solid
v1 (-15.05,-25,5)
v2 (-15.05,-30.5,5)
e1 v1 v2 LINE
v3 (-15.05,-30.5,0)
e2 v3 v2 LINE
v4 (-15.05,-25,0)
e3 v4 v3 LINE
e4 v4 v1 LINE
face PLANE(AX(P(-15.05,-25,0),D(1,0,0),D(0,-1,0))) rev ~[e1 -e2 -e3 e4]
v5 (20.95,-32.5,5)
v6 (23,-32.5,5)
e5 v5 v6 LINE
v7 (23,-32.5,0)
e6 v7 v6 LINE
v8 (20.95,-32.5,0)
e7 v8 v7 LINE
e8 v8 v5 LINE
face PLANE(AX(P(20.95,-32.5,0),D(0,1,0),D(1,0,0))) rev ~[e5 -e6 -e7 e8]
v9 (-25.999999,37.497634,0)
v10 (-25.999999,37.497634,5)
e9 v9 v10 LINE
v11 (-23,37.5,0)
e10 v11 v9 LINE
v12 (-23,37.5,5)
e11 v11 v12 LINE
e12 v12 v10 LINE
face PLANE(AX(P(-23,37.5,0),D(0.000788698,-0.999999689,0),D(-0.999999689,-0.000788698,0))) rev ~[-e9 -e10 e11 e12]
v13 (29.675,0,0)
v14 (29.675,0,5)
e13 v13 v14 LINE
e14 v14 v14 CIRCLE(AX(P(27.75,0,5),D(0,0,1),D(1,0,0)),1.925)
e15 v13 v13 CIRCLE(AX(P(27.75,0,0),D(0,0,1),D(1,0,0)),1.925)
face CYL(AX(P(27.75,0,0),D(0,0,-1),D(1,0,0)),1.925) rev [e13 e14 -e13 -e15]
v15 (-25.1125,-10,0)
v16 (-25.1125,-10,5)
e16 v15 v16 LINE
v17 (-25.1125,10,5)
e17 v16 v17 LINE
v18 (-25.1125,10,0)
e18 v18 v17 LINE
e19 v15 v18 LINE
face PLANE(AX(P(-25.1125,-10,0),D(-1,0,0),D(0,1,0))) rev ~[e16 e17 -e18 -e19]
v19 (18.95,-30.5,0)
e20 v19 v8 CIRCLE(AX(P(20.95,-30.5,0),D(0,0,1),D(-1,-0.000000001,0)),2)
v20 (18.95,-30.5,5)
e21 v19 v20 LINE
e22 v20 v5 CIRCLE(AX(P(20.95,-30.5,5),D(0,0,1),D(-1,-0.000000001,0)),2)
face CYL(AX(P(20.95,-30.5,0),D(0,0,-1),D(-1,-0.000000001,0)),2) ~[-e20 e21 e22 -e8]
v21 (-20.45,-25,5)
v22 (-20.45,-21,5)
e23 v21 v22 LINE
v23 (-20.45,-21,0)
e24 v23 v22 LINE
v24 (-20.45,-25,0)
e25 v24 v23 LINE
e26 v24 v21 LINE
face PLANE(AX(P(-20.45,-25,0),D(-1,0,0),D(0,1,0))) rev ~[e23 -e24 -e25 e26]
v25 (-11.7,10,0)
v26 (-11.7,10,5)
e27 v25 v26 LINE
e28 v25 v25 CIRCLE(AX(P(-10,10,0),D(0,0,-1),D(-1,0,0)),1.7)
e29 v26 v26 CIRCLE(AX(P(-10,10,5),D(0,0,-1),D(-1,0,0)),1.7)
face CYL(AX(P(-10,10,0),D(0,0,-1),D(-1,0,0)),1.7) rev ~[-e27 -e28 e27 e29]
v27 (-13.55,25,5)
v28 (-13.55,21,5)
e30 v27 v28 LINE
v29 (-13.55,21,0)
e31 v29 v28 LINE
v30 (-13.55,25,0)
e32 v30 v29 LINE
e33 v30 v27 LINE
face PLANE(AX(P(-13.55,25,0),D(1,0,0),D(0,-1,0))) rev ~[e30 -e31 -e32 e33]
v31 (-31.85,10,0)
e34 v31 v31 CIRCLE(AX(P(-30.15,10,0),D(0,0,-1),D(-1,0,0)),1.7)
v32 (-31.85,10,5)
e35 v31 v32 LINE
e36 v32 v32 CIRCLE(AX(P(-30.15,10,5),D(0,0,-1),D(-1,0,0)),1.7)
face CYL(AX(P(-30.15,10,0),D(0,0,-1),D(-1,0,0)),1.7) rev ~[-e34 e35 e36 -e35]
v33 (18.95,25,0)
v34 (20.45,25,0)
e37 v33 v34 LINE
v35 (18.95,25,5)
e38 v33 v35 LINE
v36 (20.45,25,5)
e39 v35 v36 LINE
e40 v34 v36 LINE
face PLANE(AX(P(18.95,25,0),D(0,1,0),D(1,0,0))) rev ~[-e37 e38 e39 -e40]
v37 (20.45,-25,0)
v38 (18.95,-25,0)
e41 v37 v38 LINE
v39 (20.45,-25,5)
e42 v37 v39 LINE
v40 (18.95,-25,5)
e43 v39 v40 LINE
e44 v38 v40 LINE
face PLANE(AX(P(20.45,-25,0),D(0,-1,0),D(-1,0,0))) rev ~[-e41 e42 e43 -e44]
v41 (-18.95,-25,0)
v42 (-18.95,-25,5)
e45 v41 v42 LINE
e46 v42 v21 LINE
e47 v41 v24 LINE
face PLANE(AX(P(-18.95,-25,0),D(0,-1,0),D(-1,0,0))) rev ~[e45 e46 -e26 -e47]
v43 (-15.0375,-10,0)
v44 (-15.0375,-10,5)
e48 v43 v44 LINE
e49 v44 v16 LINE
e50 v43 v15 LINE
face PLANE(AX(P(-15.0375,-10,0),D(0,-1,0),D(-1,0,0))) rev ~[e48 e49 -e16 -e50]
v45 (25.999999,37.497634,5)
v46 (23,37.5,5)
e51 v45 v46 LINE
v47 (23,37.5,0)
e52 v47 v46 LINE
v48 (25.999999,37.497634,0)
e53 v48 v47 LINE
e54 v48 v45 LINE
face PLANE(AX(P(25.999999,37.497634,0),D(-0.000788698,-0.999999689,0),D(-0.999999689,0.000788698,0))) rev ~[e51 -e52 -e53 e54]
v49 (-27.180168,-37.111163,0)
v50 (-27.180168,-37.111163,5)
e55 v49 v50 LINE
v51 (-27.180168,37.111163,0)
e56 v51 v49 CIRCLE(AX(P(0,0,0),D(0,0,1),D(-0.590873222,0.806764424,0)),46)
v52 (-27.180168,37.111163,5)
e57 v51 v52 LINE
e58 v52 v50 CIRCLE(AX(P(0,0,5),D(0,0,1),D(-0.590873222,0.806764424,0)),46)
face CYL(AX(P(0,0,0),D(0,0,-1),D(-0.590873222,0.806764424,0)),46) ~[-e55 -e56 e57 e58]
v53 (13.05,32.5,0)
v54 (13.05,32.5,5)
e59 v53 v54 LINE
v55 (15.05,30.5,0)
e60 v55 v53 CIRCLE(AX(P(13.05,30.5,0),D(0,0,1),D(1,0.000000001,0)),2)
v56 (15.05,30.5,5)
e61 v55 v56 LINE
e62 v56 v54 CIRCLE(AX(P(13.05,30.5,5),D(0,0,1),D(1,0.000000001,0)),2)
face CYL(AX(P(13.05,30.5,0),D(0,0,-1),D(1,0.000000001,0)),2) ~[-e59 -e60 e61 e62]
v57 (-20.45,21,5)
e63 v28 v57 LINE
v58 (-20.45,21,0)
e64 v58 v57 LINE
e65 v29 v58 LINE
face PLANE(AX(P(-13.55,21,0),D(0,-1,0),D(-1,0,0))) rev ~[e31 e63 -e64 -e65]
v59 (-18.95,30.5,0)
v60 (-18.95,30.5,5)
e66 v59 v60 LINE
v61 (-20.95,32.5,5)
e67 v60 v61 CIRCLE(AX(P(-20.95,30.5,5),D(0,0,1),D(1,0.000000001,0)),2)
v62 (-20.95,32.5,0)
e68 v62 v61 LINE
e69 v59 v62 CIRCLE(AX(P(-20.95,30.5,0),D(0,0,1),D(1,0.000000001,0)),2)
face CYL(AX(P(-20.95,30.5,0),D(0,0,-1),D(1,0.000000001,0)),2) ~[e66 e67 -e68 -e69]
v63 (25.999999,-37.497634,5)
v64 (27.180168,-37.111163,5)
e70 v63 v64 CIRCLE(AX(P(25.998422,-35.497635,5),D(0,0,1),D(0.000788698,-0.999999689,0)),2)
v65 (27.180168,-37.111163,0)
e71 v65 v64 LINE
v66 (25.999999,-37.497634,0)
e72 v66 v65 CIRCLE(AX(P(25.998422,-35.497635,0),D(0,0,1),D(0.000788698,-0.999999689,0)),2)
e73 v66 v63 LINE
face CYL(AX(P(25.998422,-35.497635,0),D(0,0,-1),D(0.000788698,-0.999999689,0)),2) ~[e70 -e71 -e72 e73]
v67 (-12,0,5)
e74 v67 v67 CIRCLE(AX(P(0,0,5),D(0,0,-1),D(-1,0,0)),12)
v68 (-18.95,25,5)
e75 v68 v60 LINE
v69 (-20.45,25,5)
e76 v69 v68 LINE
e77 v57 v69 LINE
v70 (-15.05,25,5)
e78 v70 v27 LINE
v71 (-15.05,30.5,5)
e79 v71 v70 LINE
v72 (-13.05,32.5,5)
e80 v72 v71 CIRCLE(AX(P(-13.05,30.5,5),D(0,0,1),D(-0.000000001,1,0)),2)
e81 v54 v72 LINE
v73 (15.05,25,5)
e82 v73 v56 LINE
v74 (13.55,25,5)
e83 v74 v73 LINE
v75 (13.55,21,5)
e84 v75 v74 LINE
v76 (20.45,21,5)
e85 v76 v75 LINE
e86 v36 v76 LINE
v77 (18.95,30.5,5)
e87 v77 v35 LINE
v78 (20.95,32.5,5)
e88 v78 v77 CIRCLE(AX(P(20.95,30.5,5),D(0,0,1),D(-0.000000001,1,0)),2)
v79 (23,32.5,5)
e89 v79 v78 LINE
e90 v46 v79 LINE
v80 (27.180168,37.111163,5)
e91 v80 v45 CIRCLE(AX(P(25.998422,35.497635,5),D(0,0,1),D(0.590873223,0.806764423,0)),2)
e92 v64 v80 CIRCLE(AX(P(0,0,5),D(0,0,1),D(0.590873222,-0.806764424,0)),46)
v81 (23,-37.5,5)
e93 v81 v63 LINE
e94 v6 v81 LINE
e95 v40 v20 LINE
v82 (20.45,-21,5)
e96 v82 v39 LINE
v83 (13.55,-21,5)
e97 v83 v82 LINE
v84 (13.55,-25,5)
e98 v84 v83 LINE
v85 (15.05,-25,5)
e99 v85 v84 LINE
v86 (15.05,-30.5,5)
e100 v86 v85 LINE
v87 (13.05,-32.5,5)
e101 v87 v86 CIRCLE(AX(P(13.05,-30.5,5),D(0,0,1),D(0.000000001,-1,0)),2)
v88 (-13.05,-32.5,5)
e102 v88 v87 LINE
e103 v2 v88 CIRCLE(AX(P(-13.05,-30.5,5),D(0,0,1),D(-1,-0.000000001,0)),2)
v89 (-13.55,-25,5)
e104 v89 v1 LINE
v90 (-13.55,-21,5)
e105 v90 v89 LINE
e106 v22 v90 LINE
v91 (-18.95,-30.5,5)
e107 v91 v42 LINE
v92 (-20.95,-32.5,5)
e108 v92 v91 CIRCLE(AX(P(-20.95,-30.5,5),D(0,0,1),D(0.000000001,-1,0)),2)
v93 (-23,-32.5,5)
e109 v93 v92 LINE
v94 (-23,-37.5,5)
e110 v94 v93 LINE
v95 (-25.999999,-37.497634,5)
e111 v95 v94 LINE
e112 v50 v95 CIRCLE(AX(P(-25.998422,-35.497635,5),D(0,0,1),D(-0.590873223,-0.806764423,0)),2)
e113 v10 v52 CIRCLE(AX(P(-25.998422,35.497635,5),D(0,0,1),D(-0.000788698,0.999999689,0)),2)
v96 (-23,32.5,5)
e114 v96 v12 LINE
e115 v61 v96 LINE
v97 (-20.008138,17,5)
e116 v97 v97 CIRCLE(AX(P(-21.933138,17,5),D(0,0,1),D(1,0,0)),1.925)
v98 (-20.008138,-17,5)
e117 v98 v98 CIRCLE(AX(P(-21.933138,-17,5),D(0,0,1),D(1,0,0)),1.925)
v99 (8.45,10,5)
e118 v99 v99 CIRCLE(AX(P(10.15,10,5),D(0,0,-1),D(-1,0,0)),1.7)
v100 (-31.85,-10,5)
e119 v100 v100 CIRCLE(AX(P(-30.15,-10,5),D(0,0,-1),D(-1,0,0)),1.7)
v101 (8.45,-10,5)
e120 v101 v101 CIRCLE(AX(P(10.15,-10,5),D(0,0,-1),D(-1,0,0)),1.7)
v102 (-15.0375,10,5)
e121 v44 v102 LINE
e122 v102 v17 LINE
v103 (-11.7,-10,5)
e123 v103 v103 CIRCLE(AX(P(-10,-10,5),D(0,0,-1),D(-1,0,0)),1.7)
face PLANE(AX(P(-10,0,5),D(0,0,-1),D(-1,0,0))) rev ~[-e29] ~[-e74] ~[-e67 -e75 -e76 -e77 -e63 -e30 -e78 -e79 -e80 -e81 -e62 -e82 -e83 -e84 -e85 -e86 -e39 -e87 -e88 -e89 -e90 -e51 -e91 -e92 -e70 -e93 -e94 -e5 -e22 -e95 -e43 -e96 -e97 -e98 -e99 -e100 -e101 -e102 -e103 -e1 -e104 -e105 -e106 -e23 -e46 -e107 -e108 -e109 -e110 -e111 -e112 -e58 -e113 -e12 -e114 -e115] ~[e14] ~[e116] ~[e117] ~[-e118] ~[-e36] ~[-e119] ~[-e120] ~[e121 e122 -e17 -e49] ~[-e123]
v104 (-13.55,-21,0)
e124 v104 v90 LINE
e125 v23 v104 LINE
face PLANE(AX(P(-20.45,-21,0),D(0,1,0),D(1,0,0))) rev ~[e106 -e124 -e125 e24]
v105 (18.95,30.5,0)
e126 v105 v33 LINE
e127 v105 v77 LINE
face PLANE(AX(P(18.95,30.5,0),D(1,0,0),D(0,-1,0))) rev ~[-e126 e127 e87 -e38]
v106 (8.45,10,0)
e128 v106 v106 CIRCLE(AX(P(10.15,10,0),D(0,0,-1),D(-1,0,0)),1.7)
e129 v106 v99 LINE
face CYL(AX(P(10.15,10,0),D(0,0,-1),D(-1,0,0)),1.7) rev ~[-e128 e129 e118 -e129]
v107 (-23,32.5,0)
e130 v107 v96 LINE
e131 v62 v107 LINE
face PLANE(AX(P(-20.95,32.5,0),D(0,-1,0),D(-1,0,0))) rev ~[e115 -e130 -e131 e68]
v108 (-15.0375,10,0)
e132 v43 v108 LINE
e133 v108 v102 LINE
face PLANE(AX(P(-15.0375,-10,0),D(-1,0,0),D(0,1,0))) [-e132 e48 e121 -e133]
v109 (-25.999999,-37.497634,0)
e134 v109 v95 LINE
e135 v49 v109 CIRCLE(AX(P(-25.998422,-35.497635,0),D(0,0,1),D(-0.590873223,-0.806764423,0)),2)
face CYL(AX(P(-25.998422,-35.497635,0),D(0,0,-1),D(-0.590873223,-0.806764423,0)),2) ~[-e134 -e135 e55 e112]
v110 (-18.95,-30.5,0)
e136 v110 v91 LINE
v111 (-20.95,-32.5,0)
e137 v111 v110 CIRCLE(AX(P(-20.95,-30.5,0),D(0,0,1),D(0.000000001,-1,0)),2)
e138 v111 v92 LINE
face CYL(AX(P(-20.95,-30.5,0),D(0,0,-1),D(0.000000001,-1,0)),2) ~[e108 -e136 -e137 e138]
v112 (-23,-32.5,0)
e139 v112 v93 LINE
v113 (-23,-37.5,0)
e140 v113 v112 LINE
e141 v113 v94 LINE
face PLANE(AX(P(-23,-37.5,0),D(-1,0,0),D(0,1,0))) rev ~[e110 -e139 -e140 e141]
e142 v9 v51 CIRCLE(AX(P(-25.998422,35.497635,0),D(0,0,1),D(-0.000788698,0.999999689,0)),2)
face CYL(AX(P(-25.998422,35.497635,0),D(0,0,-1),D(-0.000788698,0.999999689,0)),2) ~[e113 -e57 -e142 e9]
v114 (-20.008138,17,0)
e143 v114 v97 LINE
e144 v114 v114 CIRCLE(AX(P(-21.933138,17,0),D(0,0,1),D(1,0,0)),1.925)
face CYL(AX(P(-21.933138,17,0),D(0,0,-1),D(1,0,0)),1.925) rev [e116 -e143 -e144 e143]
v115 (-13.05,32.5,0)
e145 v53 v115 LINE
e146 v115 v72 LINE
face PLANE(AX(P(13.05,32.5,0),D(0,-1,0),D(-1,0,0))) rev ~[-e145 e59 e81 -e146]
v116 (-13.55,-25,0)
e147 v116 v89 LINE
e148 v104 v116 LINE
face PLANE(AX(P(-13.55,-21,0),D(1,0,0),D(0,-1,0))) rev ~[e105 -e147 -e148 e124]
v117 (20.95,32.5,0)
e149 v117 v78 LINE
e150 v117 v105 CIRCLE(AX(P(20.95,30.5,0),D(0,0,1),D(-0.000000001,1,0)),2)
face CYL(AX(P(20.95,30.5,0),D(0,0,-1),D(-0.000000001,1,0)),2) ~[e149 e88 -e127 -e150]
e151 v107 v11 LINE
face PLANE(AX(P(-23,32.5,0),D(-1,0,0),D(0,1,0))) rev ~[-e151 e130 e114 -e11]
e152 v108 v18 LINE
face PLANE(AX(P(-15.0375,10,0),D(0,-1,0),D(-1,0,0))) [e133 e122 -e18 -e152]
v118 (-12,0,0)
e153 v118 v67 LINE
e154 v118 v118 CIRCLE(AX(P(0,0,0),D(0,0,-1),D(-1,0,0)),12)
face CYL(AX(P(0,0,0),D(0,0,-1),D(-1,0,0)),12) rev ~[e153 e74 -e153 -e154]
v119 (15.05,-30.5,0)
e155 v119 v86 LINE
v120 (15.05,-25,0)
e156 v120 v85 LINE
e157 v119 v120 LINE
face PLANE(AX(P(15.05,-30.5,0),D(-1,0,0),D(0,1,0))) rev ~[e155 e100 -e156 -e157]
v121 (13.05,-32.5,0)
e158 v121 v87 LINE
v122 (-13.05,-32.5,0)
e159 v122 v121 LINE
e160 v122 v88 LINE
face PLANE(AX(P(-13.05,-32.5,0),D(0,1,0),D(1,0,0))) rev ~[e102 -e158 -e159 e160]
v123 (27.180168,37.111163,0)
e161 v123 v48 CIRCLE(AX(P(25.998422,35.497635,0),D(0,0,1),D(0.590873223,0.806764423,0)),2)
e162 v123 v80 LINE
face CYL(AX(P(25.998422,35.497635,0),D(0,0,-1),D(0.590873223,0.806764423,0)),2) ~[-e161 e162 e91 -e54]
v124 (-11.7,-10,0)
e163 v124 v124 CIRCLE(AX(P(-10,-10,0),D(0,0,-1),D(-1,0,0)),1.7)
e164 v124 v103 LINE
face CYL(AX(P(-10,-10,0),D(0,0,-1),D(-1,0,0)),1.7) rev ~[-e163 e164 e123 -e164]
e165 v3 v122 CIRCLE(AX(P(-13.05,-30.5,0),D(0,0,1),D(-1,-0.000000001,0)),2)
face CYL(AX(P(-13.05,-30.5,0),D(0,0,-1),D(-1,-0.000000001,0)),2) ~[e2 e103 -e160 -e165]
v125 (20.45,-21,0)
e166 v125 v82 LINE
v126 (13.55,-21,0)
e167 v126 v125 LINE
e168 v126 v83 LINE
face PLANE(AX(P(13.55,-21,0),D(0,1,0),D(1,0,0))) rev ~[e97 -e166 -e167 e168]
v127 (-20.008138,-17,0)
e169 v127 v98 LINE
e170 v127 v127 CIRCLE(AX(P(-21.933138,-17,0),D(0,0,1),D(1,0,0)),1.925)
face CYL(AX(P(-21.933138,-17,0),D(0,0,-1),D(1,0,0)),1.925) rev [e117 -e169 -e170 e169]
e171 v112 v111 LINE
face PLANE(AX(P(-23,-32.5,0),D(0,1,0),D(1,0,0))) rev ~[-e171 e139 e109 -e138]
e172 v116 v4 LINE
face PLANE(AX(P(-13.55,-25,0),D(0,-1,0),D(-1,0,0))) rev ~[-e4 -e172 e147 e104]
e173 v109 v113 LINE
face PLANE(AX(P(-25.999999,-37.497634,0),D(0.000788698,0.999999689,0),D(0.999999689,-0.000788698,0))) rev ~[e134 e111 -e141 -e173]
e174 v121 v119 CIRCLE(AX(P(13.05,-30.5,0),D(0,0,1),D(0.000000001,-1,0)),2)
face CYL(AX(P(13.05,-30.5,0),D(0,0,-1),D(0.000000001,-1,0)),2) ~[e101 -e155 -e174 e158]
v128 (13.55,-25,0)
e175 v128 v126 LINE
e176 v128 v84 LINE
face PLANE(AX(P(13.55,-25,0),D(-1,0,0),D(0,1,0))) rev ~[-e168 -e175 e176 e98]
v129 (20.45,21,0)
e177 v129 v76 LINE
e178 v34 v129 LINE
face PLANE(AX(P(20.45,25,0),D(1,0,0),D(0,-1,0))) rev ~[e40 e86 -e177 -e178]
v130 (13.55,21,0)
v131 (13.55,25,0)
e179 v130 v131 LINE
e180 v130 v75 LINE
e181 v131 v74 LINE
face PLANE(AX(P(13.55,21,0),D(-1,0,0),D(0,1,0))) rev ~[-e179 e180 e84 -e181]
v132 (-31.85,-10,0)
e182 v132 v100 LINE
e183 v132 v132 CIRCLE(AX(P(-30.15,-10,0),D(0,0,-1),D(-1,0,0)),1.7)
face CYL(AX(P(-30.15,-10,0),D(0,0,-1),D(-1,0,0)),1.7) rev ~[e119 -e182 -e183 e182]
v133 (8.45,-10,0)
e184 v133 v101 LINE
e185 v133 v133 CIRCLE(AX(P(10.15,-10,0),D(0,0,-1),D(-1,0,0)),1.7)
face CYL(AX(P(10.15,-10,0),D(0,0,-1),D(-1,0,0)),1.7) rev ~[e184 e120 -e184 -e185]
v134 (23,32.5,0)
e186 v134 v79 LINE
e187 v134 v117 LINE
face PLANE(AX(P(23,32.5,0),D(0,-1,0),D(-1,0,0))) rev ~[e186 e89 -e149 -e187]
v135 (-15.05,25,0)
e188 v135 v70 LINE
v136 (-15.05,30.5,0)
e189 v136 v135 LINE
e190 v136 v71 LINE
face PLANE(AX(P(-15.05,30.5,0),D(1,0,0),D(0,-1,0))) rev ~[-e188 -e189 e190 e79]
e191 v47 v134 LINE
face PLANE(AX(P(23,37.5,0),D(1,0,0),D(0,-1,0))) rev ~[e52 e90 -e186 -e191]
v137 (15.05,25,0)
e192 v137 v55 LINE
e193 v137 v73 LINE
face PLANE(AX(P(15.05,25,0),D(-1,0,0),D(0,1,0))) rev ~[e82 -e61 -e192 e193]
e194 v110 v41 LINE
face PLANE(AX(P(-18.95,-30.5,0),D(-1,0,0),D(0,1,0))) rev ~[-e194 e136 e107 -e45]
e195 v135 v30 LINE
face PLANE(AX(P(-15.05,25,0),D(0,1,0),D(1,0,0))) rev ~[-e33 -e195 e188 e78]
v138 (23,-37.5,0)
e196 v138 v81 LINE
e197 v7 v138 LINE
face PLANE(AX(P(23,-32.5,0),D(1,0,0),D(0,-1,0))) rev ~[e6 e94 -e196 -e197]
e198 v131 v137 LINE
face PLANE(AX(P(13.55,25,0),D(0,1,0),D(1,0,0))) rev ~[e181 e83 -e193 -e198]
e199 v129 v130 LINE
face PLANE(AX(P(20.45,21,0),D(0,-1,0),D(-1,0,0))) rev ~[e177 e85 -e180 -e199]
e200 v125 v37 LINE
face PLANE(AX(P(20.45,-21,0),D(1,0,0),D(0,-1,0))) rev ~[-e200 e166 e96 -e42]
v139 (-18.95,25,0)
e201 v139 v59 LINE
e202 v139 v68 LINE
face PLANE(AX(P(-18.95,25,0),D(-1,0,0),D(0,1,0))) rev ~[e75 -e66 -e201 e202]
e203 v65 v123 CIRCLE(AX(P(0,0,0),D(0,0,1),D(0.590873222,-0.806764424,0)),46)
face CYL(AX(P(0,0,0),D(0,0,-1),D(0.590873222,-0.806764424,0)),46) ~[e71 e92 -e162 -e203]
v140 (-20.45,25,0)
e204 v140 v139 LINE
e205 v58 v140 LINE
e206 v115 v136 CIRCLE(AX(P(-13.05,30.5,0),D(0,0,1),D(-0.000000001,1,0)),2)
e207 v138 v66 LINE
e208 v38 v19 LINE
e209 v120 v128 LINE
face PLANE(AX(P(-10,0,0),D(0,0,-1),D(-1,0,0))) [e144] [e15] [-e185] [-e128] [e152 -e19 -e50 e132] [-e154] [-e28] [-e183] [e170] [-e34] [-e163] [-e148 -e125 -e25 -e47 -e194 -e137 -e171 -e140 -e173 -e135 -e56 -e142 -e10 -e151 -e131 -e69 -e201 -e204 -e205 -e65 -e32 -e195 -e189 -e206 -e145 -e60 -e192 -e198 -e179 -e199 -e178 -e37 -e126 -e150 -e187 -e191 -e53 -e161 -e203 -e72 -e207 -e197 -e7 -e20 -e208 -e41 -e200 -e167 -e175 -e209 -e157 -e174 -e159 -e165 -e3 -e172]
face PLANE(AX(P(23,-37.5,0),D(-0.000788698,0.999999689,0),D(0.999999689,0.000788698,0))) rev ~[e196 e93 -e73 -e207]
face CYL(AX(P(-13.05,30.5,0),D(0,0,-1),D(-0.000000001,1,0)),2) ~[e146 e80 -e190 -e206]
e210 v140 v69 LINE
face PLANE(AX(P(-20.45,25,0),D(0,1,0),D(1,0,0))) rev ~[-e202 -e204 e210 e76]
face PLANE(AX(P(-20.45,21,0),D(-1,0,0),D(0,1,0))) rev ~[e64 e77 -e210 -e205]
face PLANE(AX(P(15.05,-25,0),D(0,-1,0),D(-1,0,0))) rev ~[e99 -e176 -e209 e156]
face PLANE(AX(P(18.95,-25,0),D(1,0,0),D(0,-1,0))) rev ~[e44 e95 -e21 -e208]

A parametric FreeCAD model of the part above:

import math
import FreeCAD as App
import Part
import Sketcher

doc = App.newDocument("Part")
params = doc.addObject("Spreadsheet::Sheet", "Params")
for row, (alias, value) in enumerate([
    ("sketch1_radius", "2 mm"),
    ("sketch1_radius2", "46 mm"),
    ("sketch1_radius3", "0.6 mm"),
    ("sketch1_diameter", "3.85 mm"),
    ("sketch1_height", "4 mm"),
    ("pad1_length", "5 mm"),
    ("sketch2_height", "5.2 mm"),
    ("pad2_length", "5 mm"),
    ("sketch3_height", "20 mm"),
    ("pad3_length", "5 mm"),
    ("sketch4_diameter", "3.2 mm"),
    ("pocket1_length", "5 mm"),
    ("sketch5_radius", "1.6 mm"),
    ("sketch5_height", "16.8 mm"),
    ("sketch5_width", "16.95 mm"),
    ("pad4_length", "5 mm"),
    ("sketch6_diameter", "24 mm"),
    ("sketch6_height", "20 mm"),
    ("pocket2_length", "5 mm"),
    ("sketch7_diameter", "22 mm"),
    ("sketch7_diameter2", "3.4 mm"),
    ("pocket3_length", "5 mm"),
], start=1):
    params.set(f"A{row}", alias)
    params.set(f"B{row}", "=" + value)
    params.setAlias(f"B{row}", alias)

body = doc.addObject("PartDesign::Body", "Body")

sketch1 = body.newObject("Sketcher::SketchObject", "Sketch")
sketch1.AttachmentSupport = (doc.getObject("XY_Plane"), [""])
sketch1.MapMode = "FlatFace"
sketch1.addGeometry([
    Part.LineSegment(App.Vector(13.1, 32.5, 0), App.Vector(-13.1, 32.5, 0)),
    Part.ArcOfCircle(Part.Circle(App.Vector(-13, 30.5, 0), App.Vector(0, 0, 1), 2), math.radians(90), math.radians(180)),
    Part.LineSegment(App.Vector(-15.1, 30.5, 0), App.Vector(-15.1, 25, 0)),
    Part.LineSegment(App.Vector(-15.1, 25, 0), App.Vector(-13.6, 25, 0)),
    Part.LineSegment(App.Vector(-13.6, 25, 0), App.Vector(-13.6, 21, 0)),
    Part.LineSegment(App.Vector(-13.6, 21, 0), App.Vector(-20.4, 21, 0)),
    Part.LineSegment(App.Vector(-20.4, 21, 0), App.Vector(-20.4, 25, 0)),
    Part.LineSegment(App.Vector(-20.4, 25, 0), App.Vector(-18.9, 25, 0)),
    Part.LineSegment(App.Vector(-18.9, 25, 0), App.Vector(-18.9, 30.5, 0)),
    Part.ArcOfCircle(Part.Circle(App.Vector(-21, 30.5, 0), App.Vector(0, 0, 1), 2), math.radians(0), math.radians(90)),
    Part.LineSegment(App.Vector(-20.9, 32.5, 0), App.Vector(-23, 32.5, 0)),
    Part.LineSegment(App.Vector(-23, 32.5, 0), App.Vector(-23, 37.5, 0)),
    Part.LineSegment(App.Vector(-23, 37.5, 0), App.Vector(-26, 37.5, 0)),
    Part.ArcOfCircle(Part.Circle(App.Vector(-26, 35.5, 0), App.Vector(0, 0, 1), 2), math.radians(90), math.radians(126)),
    Part.ArcOfCircle(Part.Circle(App.Vector(0, 0, 0), App.Vector(0, 0, 1), 46), math.radians(126), math.radians(234)),
    Part.ArcOfCircle(Part.Circle(App.Vector(-26, -35.5, 0), App.Vector(0, 0, 1), 2), math.radians(-126), math.radians(-90)),
    Part.LineSegment(App.Vector(-26, -37.5, 0), App.Vector(-23, -37.5, 0)),
    Part.LineSegment(App.Vector(-23, -37.5, 0), App.Vector(-23, -32.5, 0)),
    Part.LineSegment(App.Vector(-23, -32.5, 0), App.Vector(-20.9, -32.5, 0)),
    Part.ArcOfCircle(Part.Circle(App.Vector(-21, -30.5, 0), App.Vector(0, 0, 1), 2), math.radians(-90), math.radians(0)),
    Part.LineSegment(App.Vector(-18.9, -30.5, 0), App.Vector(-18.9, -25, 0)),
    Part.LineSegment(App.Vector(-18.9, -25, 0), App.Vector(-20.4, -25, 0)),
    Part.LineSegment(App.Vector(-20.4, -25, 0), App.Vector(-20.4, -21, 0)),
    Part.LineSegment(App.Vector(-20.4, -21, 0), App.Vector(-13.6, -21, 0)),
    Part.LineSegment(App.Vector(-13.6, -21, 0), App.Vector(-13.6, -25, 0)),
    Part.LineSegment(App.Vector(-13.6, -25, 0), App.Vector(-15.1, -25, 0)),
    Part.LineSegment(App.Vector(-15.1, -25, 0), App.Vector(-15.1, -30.5, 0)),
    Part.ArcOfCircle(Part.Circle(App.Vector(-13, -30.5, 0), App.Vector(0, 0, 1), 2), math.radians(-180), math.radians(-90)),
    Part.LineSegment(App.Vector(-13.1, -32.5, 0), App.Vector(13.1, -32.5, 0)),
    Part.ArcOfCircle(Part.Circle(App.Vector(13, -30.5, 0), App.Vector(0, 0, 1), 2), math.radians(-90), math.radians(0)),
    Part.LineSegment(App.Vector(15.1, -30.5, 0), App.Vector(15.1, -25, 0)),
    Part.LineSegment(App.Vector(15.1, -25, 0), App.Vector(13.6, -25, 0)),
    Part.LineSegment(App.Vector(13.6, -25, 0), App.Vector(13.6, -21, 0)),
    Part.LineSegment(App.Vector(13.6, -21, 0), App.Vector(20.4, -21, 0)),
    Part.LineSegment(App.Vector(20.4, -21, 0), App.Vector(20.4, -25, 0)),
    Part.LineSegment(App.Vector(20.4, -25, 0), App.Vector(18.9, -25, 0)),
    Part.LineSegment(App.Vector(18.9, -25, 0), App.Vector(18.9, -30.5, 0)),
    Part.ArcOfCircle(Part.Circle(App.Vector(21, -30.5, 0), App.Vector(0, 0, 1), 2), math.radians(-180), math.radians(-90)),
    Part.LineSegment(App.Vector(20.9, -32.5, 0), App.Vector(23, -32.5, 0)),
    Part.LineSegment(App.Vector(23, -32.5, 0), App.Vector(23, -37.5, 0)),
    Part.LineSegment(App.Vector(23, -37.5, 0), App.Vector(26, -37.5, 0)),
    Part.ArcOfCircle(Part.Circle(App.Vector(26, -35.5, 0), App.Vector(0, 0, 1), 2), math.radians(-90), math.radians(-54)),
    Part.ArcOfCircle(Part.Circle(App.Vector(0, 0, 0), App.Vector(0, 0, 1), 46), math.radians(-54), math.radians(54)),
    Part.ArcOfCircle(Part.Circle(App.Vector(26, 35.5, 0), App.Vector(0, 0, 1), 2), math.radians(54), math.radians(90)),
    Part.LineSegment(App.Vector(26, 37.5, 0), App.Vector(23, 37.5, 0)),
    Part.LineSegment(App.Vector(23, 37.5, 0), App.Vector(23, 32.5, 0)),
    Part.LineSegment(App.Vector(23, 32.5, 0), App.Vector(20.9, 32.5, 0)),
    Part.ArcOfCircle(Part.Circle(App.Vector(21, 30.5, 0), App.Vector(0, 0, 1), 2), math.radians(90), math.radians(180)),
    Part.LineSegment(App.Vector(18.9, 30.5, 0), App.Vector(18.9, 25, 0)),
    Part.LineSegment(App.Vector(18.9, 25, 0), App.Vector(20.4, 25, 0)),
    Part.LineSegment(App.Vector(20.4, 25, 0), App.Vector(20.4, 21, 0)),
    Part.LineSegment(App.Vector(20.4, 21, 0), App.Vector(13.6, 21, 0)),
    Part.LineSegment(App.Vector(13.6, 21, 0), App.Vector(13.6, 25, 0)),
    Part.LineSegment(App.Vector(13.6, 25, 0), App.Vector(15.1, 25, 0)),
    Part.LineSegment(App.Vector(15.1, 25, 0), App.Vector(15.1, 30.5, 0)),
    Part.ArcOfCircle(Part.Circle(App.Vector(13, 30.5, 0), App.Vector(0, 0, 1), 2), math.radians(0), math.radians(90)),
    Part.Circle(App.Vector(-21.9, -17, 0), App.Vector(0, 0, 1), 1.9),
    Part.Circle(App.Vector(-34.5, -5, 0), App.Vector(0, 0, 1), 1.9),
    Part.Circle(App.Vector(14.5, -5, 0), App.Vector(0, 0, 1), 1.9),
    Part.Circle(App.Vector(-34.5, 5, 0), App.Vector(0, 0, 1), 1.9),
    Part.LineSegment(App.Vector(10.2, -2.6, 0), App.Vector(10.2, -10, 0)),
    Part.LineSegment(App.Vector(10.2, -10, 0), App.Vector(-30.1, -10, 0)),
    Part.LineSegment(App.Vector(-30.1, -10, 0), App.Vector(-30.1, -2.6, 0)),
    Part.ArcOfCircle(Part.Circle(App.Vector(-32.1, -2.6, 0), App.Vector(0, 0, 1), 2), math.radians(0), math.radians(90)),
    Part.LineSegment(App.Vector(-32.1, -0.6, 0), App.Vector(-36.5, -0.6, 0)),
    Part.ArcOfCircle(Part.Circle(App.Vector(-36.5, 0, 0), App.Vector(0, 0, 1), 0.6), math.radians(90), math.radians(270)),
    Part.LineSegment(App.Vector(-36.5, 0.6, 0), App.Vector(-32.1, 0.6, 0)),
    Part.ArcOfCircle(Part.Circle(App.Vector(-32.1, 2.6, 0), App.Vector(0, 0, 1), 2), math.radians(-90), math.radians(0)),
    Part.LineSegment(App.Vector(-30.1, 2.6, 0), App.Vector(-30.1, 10, 0)),
    Part.LineSegment(App.Vector(-30.1, 10, 0), App.Vector(10.2, 10, 0)),
    Part.LineSegment(App.Vector(10.2, 10, 0), App.Vector(10.2, 2.6, 0)),
    Part.ArcOfCircle(Part.Circle(App.Vector(12.2, 2.6, 0), App.Vector(0, 0, 1), 2), math.radians(180), math.radians(270)),
    Part.LineSegment(App.Vector(12.2, 0.6, 0), App.Vector(16.5, 0.6, 0)),
    Part.ArcOfCircle(Part.Circle(App.Vector(16.5, 0, 0), App.Vector(0, 0, 1), 0.6), math.radians(-90), math.radians(90)),
    Part.LineSegment(App.Vector(16.5, -0.6, 0), App.Vector(12.2, -0.6, 0)),
    Part.ArcOfCircle(Part.Circle(App.Vector(12.2, -2.6, 0), App.Vector(0, 0, 1), 2), math.radians(90), math.radians(180)),
    Part.Circle(App.Vector(-21.9, 17, 0), App.Vector(0, 0, 1), 1.9),
    Part.Circle(App.Vector(27.8, 0, 0), App.Vector(0, 0, 1), 1.9),
    Part.Circle(App.Vector(14.5, 5, 0), App.Vector(0, 0, 1), 1.9),
], False)
sketch1.addConstraint([
    Sketcher.Constraint("Tangent", 0, 2, 1, 1),
    Sketcher.Constraint("Tangent", 1, 2, 2, 1),
    Sketcher.Constraint("Coincident", 2, 2, 3, 1),
    Sketcher.Constraint("Coincident", 3, 2, 4, 1),
    Sketcher.Constraint("Coincident", 4, 2, 5, 1),
    Sketcher.Constraint("Coincident", 5, 2, 6, 1),
    Sketcher.Constraint("Coincident", 6, 2, 7, 1),
    Sketcher.Constraint("Coincident", 7, 2, 8, 1),
    Sketcher.Constraint("Tangent", 8, 2, 9, 1),
    Sketcher.Constraint("Tangent", 9, 2, 10, 1),
    Sketcher.Constraint("Coincident", 10, 2, 11, 1),
    Sketcher.Constraint("Coincident", 11, 2, 12, 1),
    Sketcher.Constraint("Tangent", 12, 2, 13, 1),
    Sketcher.Constraint("Tangent", 13, 2, 14, 1),
    Sketcher.Constraint("Tangent", 14, 2, 15, 1),
    Sketcher.Constraint("Tangent", 15, 2, 16, 1),
    Sketcher.Constraint("Coincident", 16, 2, 17, 1),
    Sketcher.Constraint("Coincident", 17, 2, 18, 1),
    Sketcher.Constraint("Tangent", 18, 2, 19, 1),
    Sketcher.Constraint("Tangent", 19, 2, 20, 1),
    Sketcher.Constraint("Coincident", 20, 2, 21, 1),
    Sketcher.Constraint("Coincident", 21, 2, 22, 1),
    Sketcher.Constraint("Coincident", 22, 2, 23, 1),
    Sketcher.Constraint("Coincident", 23, 2, 24, 1),
    Sketcher.Constraint("Coincident", 24, 2, 25, 1),
    Sketcher.Constraint("Coincident", 25, 2, 26, 1),
    Sketcher.Constraint("Tangent", 26, 2, 27, 1),
    Sketcher.Constraint("Tangent", 27, 2, 28, 1),
    Sketcher.Constraint("Tangent", 28, 2, 29, 1),
    Sketcher.Constraint("Tangent", 29, 2, 30, 1),
    Sketcher.Constraint("Coincident", 30, 2, 31, 1),
    Sketcher.Constraint("Coincident", 31, 2, 32, 1),
    Sketcher.Constraint("Coincident", 32, 2, 33, 1),
    Sketcher.Constraint("Coincident", 33, 2, 34, 1),
    Sketcher.Constraint("Coincident", 34, 2, 35, 1),
    Sketcher.Constraint("Coincident", 35, 2, 36, 1),
    Sketcher.Constraint("Tangent", 36, 2, 37, 1),
    Sketcher.Constraint("Tangent", 37, 2, 38, 1),
    Sketcher.Constraint("Coincident", 38, 2, 39, 1),
    Sketcher.Constraint("Coincident", 39, 2, 40, 1),
    Sketcher.Constraint("Tangent", 40, 2, 41, 1),
    Sketcher.Constraint("Tangent", 41, 2, 42, 1),
    Sketcher.Constraint("Tangent", 42, 2, 43, 1),
    Sketcher.Constraint("Tangent", 43, 2, 44, 1),
    Sketcher.Constraint("Coincident", 44, 2, 45, 1),
    Sketcher.Constraint("Coincident", 45, 2, 46, 1),
    Sketcher.Constraint("Tangent", 46, 2, 47, 1),
    Sketcher.Constraint("Tangent", 47, 2, 48, 1),
    Sketcher.Constraint("Coincident", 48, 2, 49, 1),
    Sketcher.Constraint("Coincident", 49, 2, 50, 1),
    Sketcher.Constraint("Coincident", 50, 2, 51, 1),
    Sketcher.Constraint("Coincident", 51, 2, 52, 1),
    Sketcher.Constraint("Coincident", 52, 2, 53, 1),
    Sketcher.Constraint("Coincident", 53, 2, 54, 1),
    Sketcher.Constraint("Tangent", 54, 2, 55, 1),
    Sketcher.Constraint("Tangent", 55, 2, 0, 1),
    Sketcher.Constraint("Coincident", 60, 2, 61, 1),
    Sketcher.Constraint("Coincident", 61, 2, 62, 1),
    Sketcher.Constraint("Tangent", 62, 2, 63, 1),
    Sketcher.Constraint("Tangent", 63, 2, 64, 1),
    Sketcher.Constraint("Tangent", 64, 2, 65, 2),
    Sketcher.Constraint("Tangent", 65, 1, 66, 1),
    Sketcher.Constraint("Tangent", 66, 2, 67, 1),
    Sketcher.Constraint("Tangent", 67, 2, 68, 1),
    Sketcher.Constraint("Coincident", 68, 2, 69, 1),
    Sketcher.Constraint("Coincident", 69, 2, 70, 1),
    Sketcher.Constraint("Tangent", 70, 2, 71, 1),
    Sketcher.Constraint("Tangent", 71, 2, 72, 1),
    Sketcher.Constraint("Tangent", 72, 2, 73, 2),
    Sketcher.Constraint("Tangent", 73, 1, 74, 1),
    Sketcher.Constraint("Tangent", 74, 2, 75, 1),
    Sketcher.Constraint("Tangent", 75, 2, 60, 1),
    Sketcher.Constraint("Horizontal", 0),
    Sketcher.Constraint("Vertical", 2),
    Sketcher.Constraint("Horizontal", 3),
    Sketcher.Constraint("Vertical", 4),
    Sketcher.Constraint("Horizontal", 5),
    Sketcher.Constraint("Vertical", 6),
    Sketcher.Constraint("Horizontal", 7),
    Sketcher.Constraint("Vertical", 8),
    Sketcher.Constraint("Horizontal", 10),
    Sketcher.Constraint("Vertical", 11),
    Sketcher.Constraint("Vertical", 17),
    Sketcher.Constraint("Horizontal", 18),
    Sketcher.Constraint("Vertical", 20),
    Sketcher.Constraint("Horizontal", 21),
    Sketcher.Constraint("Vertical", 22),
    Sketcher.Constraint("Horizontal", 23),
    Sketcher.Constraint("Vertical", 24),
    Sketcher.Constraint("Horizontal", 25),
    Sketcher.Constraint("Vertical", 26),
    Sketcher.Constraint("Horizontal", 28),
    Sketcher.Constraint("Vertical", 30),
    Sketcher.Constraint("Horizontal", 31),
    Sketcher.Constraint("Vertical", 32),
    Sketcher.Constraint("Horizontal", 33),
    Sketcher.Constraint("Vertical", 34),
    Sketcher.Constraint("Horizontal", 35),
    Sketcher.Constraint("Vertical", 36),
    Sketcher.Constraint("Horizontal", 38),
    Sketcher.Constraint("Vertical", 39),
    Sketcher.Constraint("Vertical", 45),
    Sketcher.Constraint("Horizontal", 46),
    Sketcher.Constraint("Vertical", 48),
    Sketcher.Constraint("Horizontal", 49),
    Sketcher.Constraint("Vertical", 50),
    Sketcher.Constraint("Horizontal", 51),
    Sketcher.Constraint("Vertical", 52),
    Sketcher.Constraint("Horizontal", 53),
    Sketcher.Constraint("Vertical", 54),
    Sketcher.Constraint("Vertical", 60),
    Sketcher.Constraint("Horizontal", 61),
    Sketcher.Constraint("Vertical", 62),
    Sketcher.Constraint("Horizontal", 64),
    Sketcher.Constraint("Horizontal", 66),
    Sketcher.Constraint("Vertical", 68),
    Sketcher.Constraint("Horizontal", 69),
    Sketcher.Constraint("Vertical", 70),
    Sketcher.Constraint("Horizontal", 72),
    Sketcher.Constraint("Horizontal", 74),
    Sketcher.Constraint("Coincident", 14, 3, -1, 1),
    Sketcher.Constraint("Coincident", 42, 3, -1, 1),
    Sketcher.Constraint("Equal", 1, 9),
    Sketcher.Constraint("Equal", 9, 13),
    Sketcher.Constraint("Equal", 13, 15),
    Sketcher.Constraint("Equal", 15, 19),
    Sketcher.Constraint("Equal", 19, 27),
    Sketcher.Constraint("Equal", 27, 29),
    Sketcher.Constraint("Equal", 29, 37),
    Sketcher.Constraint("Equal", 37, 41),
    Sketcher.Constraint("Equal", 14, 42),
    Sketcher.Constraint("Equal", 41, 43),
    Sketcher.Constraint("Equal", 43, 47),
    Sketcher.Constraint("Equal", 47, 55),
    Sketcher.Constraint("Equal", 56, 57),
    Sketcher.Constraint("Equal", 57, 58),
    Sketcher.Constraint("Equal", 58, 59),
    Sketcher.Constraint("Equal", 55, 63),
    Sketcher.Constraint("Equal", 63, 67),
    Sketcher.Constraint("Equal", 67, 71),
    Sketcher.Constraint("Equal", 65, 73),
    Sketcher.Constraint("Equal", 71, 75),
    Sketcher.Constraint("Equal", 59, 76),
    Sketcher.Constraint("Equal", 76, 77),
    Sketcher.Constraint("Equal", 77, 78),
    Sketcher.Constraint("Symmetric", 1, 3, 29, 3, -1, 1),
    Sketcher.Constraint("Symmetric", 9, 3, 37, 3, -1, 1),
    Sketcher.Constraint("Symmetric", 19, 3, 47, 3, -1, 1),
    Sketcher.Constraint("Symmetric", 3, 2, 31, 2, -1, 1),
    Sketcher.Constraint("Symmetric", 5, 2, 33, 2, -1, 1),
    Sketcher.Constraint("Symmetric", 11, 2, 39, 2, -1, 1),
    Sketcher.Constraint("Symmetric", 15, 2, 43, 2, -1, 1),
    Sketcher.Constraint("Symmetric", 21, 2, 49, 2, -1, 1),
    Sketcher.Constraint("Symmetric", 23, 2, 51, 2, -1, 1),
    Sketcher.Constraint("Symmetric", 25, 2, 53, 2, -1, 1),
    Sketcher.Constraint("Symmetric", 19, 3, 37, 3, -2),
    Sketcher.Constraint("Symmetric", 25, 2, 30, 2, -2),
    Sketcher.Constraint("Symmetric", 23, 2, 32, 2, -2),
    Sketcher.Constraint("Symmetric", 21, 2, 34, 2, -2),
    Sketcher.Constraint("Symmetric", 16, 2, 39, 2, -2),
    Sketcher.Constraint("Symmetric", 57, 3, 59, 3, -1),
    Sketcher.Constraint("Symmetric", 63, 3, 67, 3, -1),
    Sketcher.Constraint("Symmetric", 71, 3, 75, 3, -1),
    Sketcher.Constraint("Symmetric", 56, 3, 76, 3, -1),
    Sketcher.Constraint("Symmetric", 58, 3, 78, 3, -1),
    Sketcher.Constraint("PointOnObject", 77, 3, -1),
    Sketcher.Constraint("Parallel", 12, 40),
    Sketcher.Constraint("Horizontal", 1, 3, 9, 3),
    Sketcher.Constraint("Horizontal", 15, 3, 41, 3),
    Sketcher.Constraint("Horizontal", 57, 3, 58, 3),
    Sketcher.Constraint("Horizontal", 3, 2, 6, 2),
    Sketcher.Constraint("Horizontal", 21, 2, 24, 2),
    Sketcher.Constraint("Vertical", 39, 2, 44, 2),
    Sketcher.Constraint("Equal", 3, 7),
    Sketcher.Constraint("Equal", 66, 72),
    Sketcher.Constraint("Equal", 62, 68),
    Sketcher.Constraint("Radius", 1, 2.0),
    Sketcher.Constraint("Radius", 14, 46.0),
    Sketcher.Constraint("Radius", 65, 0.6),
    Sketcher.Constraint("Diameter", 56, 3.85),
    Sketcher.Constraint("DistanceY", 4, 2, 4, 1, 4.0),
    Sketcher.Constraint("DistanceY", 11, 1, 11, 2, 5.0),
    Sketcher.Constraint("Distance", 12, 3.0),
    Sketcher.Constraint("DistanceX", 0, 2, 0, 1, 26.1),
    Sketcher.Constraint("DistanceX", 3, 1, 3, 2, 1.5),
    Sketcher.Constraint("DistanceX", 5, 2, 5, 1, 6.9),
    Sketcher.Constraint("DistanceX", 61, 2, 61, 1, 40.3),
    Sketcher.Constraint("DistanceY", 2, 2, 2, 1, 5.5),
    Sketcher.Constraint("DistanceY", 60, 2, 60, 1, 7.4),
    Sketcher.Constraint("DistanceY", 56, 3, -1, 1, 17.0),
    Sketcher.Constraint("DistanceY", 57, 3, -1, 1, 5.0),
    Sketcher.Constraint("DistanceY", -1, 1, 2, 2, 25.0),
    Sketcher.Constraint("DistanceX", 10, 2, -1, 1, 23.0),
    Sketcher.Constraint("DistanceX", 64, 2, 64, 1, 4.35),
    Sketcher.Constraint("DistanceX", 57, 3, -1, 1, 34.5),
    Sketcher.Constraint("DistanceX", -1, 1, 58, 3, 14.5),
    Sketcher.Constraint("DistanceX", 65, 3, -1, 1, 36.5),
    Sketcher.Constraint("DistanceX", -1, 1, 77, 3, 27.75),
    Sketcher.Constraint("DistanceX", 56, 3, -1, 1, 21.933138),
])
sketch1.setExpression("Constraints[176]", "Params.sketch1_radius")
sketch1.setExpression("Constraints[177]", "Params.sketch1_radius2")
sketch1.setExpression("Constraints[178]", "Params.sketch1_radius3")
sketch1.setExpression("Constraints[179]", "Params.sketch1_diameter")
sketch1.setExpression("Constraints[180]", "Params.sketch1_height")
pad1 = body.newObject("PartDesign::Pad", "Pad")
pad1.Profile = sketch1
pad1.setExpression("Length", "Params.pad1_length")

sketch2 = body.newObject("Sketcher::SketchObject", "Sketch001")
sketch2.AttachmentSupport = (doc.getObject("XY_Plane"), [""])
sketch2.MapMode = "FlatFace"
sketch2.addGeometry([
    Part.LineSegment(App.Vector(-30, 3, 0), App.Vector(-30, -3, 0)),
    Part.LineSegment(App.Vector(-30, -3, 0), App.Vector(-38, -3, 0)),
    Part.LineSegment(App.Vector(-38, -3, 0), App.Vector(-38, 3, 0)),
    Part.LineSegment(App.Vector(-38, 3, 0), App.Vector(-30, 3, 0)),
    Part.LineSegment(App.Vector(18, 3, 0), App.Vector(18, -3, 0)),
    Part.LineSegment(App.Vector(18, -3, 0), App.Vector(10, -3, 0)),
    Part.LineSegment(App.Vector(10, -3, 0), App.Vector(10, 3, 0)),
    Part.LineSegment(App.Vector(10, 3, 0), App.Vector(18, 3, 0)),
], False)
sketch2.addConstraint([
    Sketcher.Constraint("Coincident", 0, 2, 1, 1),
    Sketcher.Constraint("Coincident", 1, 2, 2, 1),
    Sketcher.Constraint("Coincident", 2, 2, 3, 1),
    Sketcher.Constraint("Coincident", 3, 2, 0, 1),
    Sketcher.Constraint("Coincident", 4, 2, 5, 1),
    Sketcher.Constraint("Coincident", 5, 2, 6, 1),
    Sketcher.Constraint("Coincident", 6, 2, 7, 1),
    Sketcher.Constraint("Coincident", 7, 2, 4, 1),
    Sketcher.Constraint("Vertical", 0),
    Sketcher.Constraint("Horizontal", 1),
    Sketcher.Constraint("Vertical", 2),
    Sketcher.Constraint("Horizontal", 3),
    Sketcher.Constraint("Vertical", 4),
    Sketcher.Constraint("Horizontal", 5),
    Sketcher.Constraint("Vertical", 6),
    Sketcher.Constraint("Horizontal", 7),
    Sketcher.Constraint("Horizontal", 1, 2, 4, 2),
    Sketcher.Constraint("Horizontal", 3, 2, 6, 2),
    Sketcher.Constraint("DistanceY", 0, 2, 0, 1, 5.2),
    Sketcher.Constraint("DistanceY", 0, 2, -1, 1, 2.6),
    Sketcher.Constraint("DistanceX", 0, 2, 5, 2, 40.3),
    Sketcher.Constraint("DistanceX", 0, 2, -1, 1, 30.15),
    Sketcher.Constraint("DistanceX", 1, 2, 1, 1, 8.0109),
    Sketcher.Constraint("DistanceX", 5, 2, 5, 1, 7.665468),
])
sketch2.setExpression("Constraints[18]", "Params.sketch2_height")
pad2 = body.newObject("PartDesign::Pad", "Pad001")
pad2.Profile = sketch2
pad2.setExpression("Length", "Params.pad2_length")

sketch3 = body.newObject("Sketcher::SketchObject", "Sketch002")
sketch3.AttachmentSupport = (doc.getObject("XY_Plane"), [""])
sketch3.MapMode = "FlatFace"
sketch3.addGeometry([
    Part.LineSegment(App.Vector(10, 10, 0), App.Vector(18, 10, 0)),
    Part.LineSegment(App.Vector(18, 10, 0), App.Vector(18, -10, 0)),
    Part.LineSegment(App.Vector(18, -10, 0), App.Vector(10, -10, 0)),
    Part.LineSegment(App.Vector(10, -10, 0), App.Vector(10, 10, 0)),
    Part.LineSegment(App.Vector(-30, 10, 0), App.Vector(-30, -10, 0)),
    Part.LineSegment(App.Vector(-30, -10, 0), App.Vector(-39, -10, 0)),
    Part.LineSegment(App.Vector(-39, -10, 0), App.Vector(-39, 10, 0)),
    Part.LineSegment(App.Vector(-39, 10, 0), App.Vector(-30, 10, 0)),
], False)
sketch3.addConstraint([
    Sketcher.Constraint("Coincident", 0, 2, 1, 1),
    Sketcher.Constraint("Coincident", 1, 2, 2, 1),
    Sketcher.Constraint("Coincident", 2, 2, 3, 1),
    Sketcher.Constraint("Coincident", 3, 2, 0, 1),
    Sketcher.Constraint("Coincident", 4, 2, 5, 1),
    Sketcher.Constraint("Coincident", 5, 2, 6, 1),
    Sketcher.Constraint("Coincident", 6, 2, 7, 1),
    Sketcher.Constraint("Coincident", 7, 2, 4, 1),
    Sketcher.Constraint("Horizontal", 0),
    Sketcher.Constraint("Vertical", 1),
    Sketcher.Constraint("Vertical", 3),
    Sketcher.Constraint("Vertical", 4),
    Sketcher.Constraint("Horizontal", 5),
    Sketcher.Constraint("Vertical", 6),
    Sketcher.Constraint("Horizontal", 7),
    Sketcher.Constraint("Horizontal", 2, 2, 4, 2),
    Sketcher.Constraint("Horizontal", 3, 2, 6, 2),
    Sketcher.Constraint("DistanceY", 3, 1, 3, 2, 20.0),
    Sketcher.Constraint("DistanceY", -1, 1, 0, 2, 10.0),
    Sketcher.Constraint("DistanceX", 4, 2, 2, 2, 40.3),
    Sketcher.Constraint("DistanceX", -1, 1, 2, 2, 10.15),
    Sketcher.Constraint("DistanceX", 0, 1, 0, 2, 7.928472),
    Sketcher.Constraint("DistanceX", 5, 2, 5, 1, 8.485254),
    Sketcher.Constraint("DistanceY", 1, 2, 1, 1, 19.561252),
])
sketch3.setExpression("Constraints[17]", "Params.sketch3_height")
pad3 = body.newObject("PartDesign::Pad", "Pad002")
pad3.Profile = sketch3
pad3.setExpression("Length", "Params.pad3_length")

sketch4 = body.newObject("Sketcher::SketchObject", "Sketch003")
sketch4.AttachmentSupport = (doc.getObject("XY_Plane"), [""])
sketch4.MapMode = "FlatFace"
sketch4.addGeometry([
    Part.Circle(App.Vector(-30.1, 10, 0), App.Vector(0, 0, 1), 1.6),
    Part.Circle(App.Vector(-30.1, -10, 0), App.Vector(0, 0, 1), 1.6),
    Part.Circle(App.Vector(10.2, 10, 0), App.Vector(0, 0, 1), 1.6),
    Part.Circle(App.Vector(10.2, -10, 0), App.Vector(0, 0, 1), 1.6),
    Part.Circle(App.Vector(-10, -10, 0), App.Vector(0, 0, 1), 1.6),
    Part.Circle(App.Vector(-10, 10, 0), App.Vector(0, 0, 1), 1.6),
], False)
sketch4.addConstraint([
    Sketcher.Constraint("Equal", 0, 1),
    Sketcher.Constraint("Equal", 1, 2),
    Sketcher.Constraint("Equal", 2, 3),
    Sketcher.Constraint("Equal", 3, 4),
    Sketcher.Constraint("Equal", 4, 5),
    Sketcher.Constraint("Symmetric", 0, 3, 1, 3, -1),
    Sketcher.Constraint("Symmetric", 2, 3, 3, 3, -1),
    Sketcher.Constraint("Symmetric", 4, 3, 5, 3, -1),
    Sketcher.Constraint("Horizontal", 0, 3, 2, 3),
    Sketcher.Constraint("Horizontal", 3, 3, 4, 3),
    Sketcher.Constraint("Diameter", 0, 3.2),
    Sketcher.Constraint("DistanceY", -1, 1, 0, 3, 10.0),
    Sketcher.Constraint("DistanceX", 4, 3, -1, 1, 10.0),
    Sketcher.Constraint("DistanceX", 0, 3, 2, 3, 40.3),
    Sketcher.Constraint("DistanceX", 0, 3, -1, 1, 30.15),
])
sketch4.setExpression("Constraints[10]", "Params.sketch4_diameter")
pocket1 = body.newObject("PartDesign::Pocket", "Pocket")
pocket1.Profile = sketch4
pocket1.setExpression("Length", "Params.pocket1_length")
pocket1.Reversed = True

sketch5 = body.newObject("Sketcher::SketchObject", "Sketch004")
sketch5.AttachmentSupport = (doc.getObject("XY_Plane"), [""])
sketch5.MapMode = "FlatFace"
sketch5.addGeometry([
    Part.LineSegment(App.Vector(-30.1, -8.4, 0), App.Vector(-30.1, 8.4, 0)),
    Part.ArcOfCircle(Part.Circle(App.Vector(-30.1, 10, 0), App.Vector(0, 0, 1), 1.6), math.radians(-90), math.radians(0)),
    Part.LineSegment(App.Vector(-28.5, 10, 0), App.Vector(-11.6, 10, 0)),
    Part.ArcOfCircle(Part.Circle(App.Vector(-10, 10, 0), App.Vector(0, 0, 1), 1.6), math.radians(180), math.radians(360)),
    Part.LineSegment(App.Vector(-8.4, 10, 0), App.Vector(8.6, 10, 0)),
    Part.ArcOfCircle(Part.Circle(App.Vector(10.2, 10, 0), App.Vector(0, 0, 1), 1.6), math.radians(180), math.radians(270)),
    Part.LineSegment(App.Vector(10.2, 8.4, 0), App.Vector(10.2, -8.4, 0)),
    Part.ArcOfCircle(Part.Circle(App.Vector(10.2, -10, 0), App.Vector(0, 0, 1), 1.6), math.radians(90), math.radians(180)),
    Part.LineSegment(App.Vector(8.6, -10, 0), App.Vector(-8.4, -10, 0)),
    Part.ArcOfCircle(Part.Circle(App.Vector(-10, -10, 0), App.Vector(0, 0, 1), 1.6), math.radians(0), math.radians(180)),
    Part.LineSegment(App.Vector(-11.6, -10, 0), App.Vector(-28.5, -10, 0)),
    Part.ArcOfCircle(Part.Circle(App.Vector(-30.1, -10, 0), App.Vector(0, 0, 1), 1.6), math.radians(0), math.radians(90)),
], False)
sketch5.addConstraint([
    Sketcher.Constraint("Coincident", 0, 2, 1, 1),
    Sketcher.Constraint("Coincident", 1, 2, 2, 1),
    Sketcher.Constraint("Coincident", 2, 2, 3, 1),
    Sketcher.Constraint("Coincident", 3, 2, 4, 1),
    Sketcher.Constraint("Coincident", 4, 2, 5, 1),
    Sketcher.Constraint("Coincident", 5, 2, 6, 1),
    Sketcher.Constraint("Coincident", 6, 2, 7, 1),
    Sketcher.Constraint("Coincident", 7, 2, 8, 1),
    Sketcher.Constraint("Coincident", 8, 2, 9, 1),
    Sketcher.Constraint("Coincident", 9, 2, 10, 1),
    Sketcher.Constraint("Coincident", 10, 2, 11, 1),
    Sketcher.Constraint("Coincident", 11, 2, 0, 1),
    Sketcher.Constraint("Vertical", 0),
    Sketcher.Constraint("Horizontal", 2),
    Sketcher.Constraint("Horizontal", 4),
    Sketcher.Constraint("Vertical", 6),
    Sketcher.Constraint("Horizontal", 8),
    Sketcher.Constraint("Horizontal", 10),
    Sketcher.Constraint("Equal", 1, 3),
    Sketcher.Constraint("Equal", 3, 5),
    Sketcher.Constraint("Equal", 5, 7),
    Sketcher.Constraint("Equal", 7, 9),
    Sketcher.Constraint("Equal", 9, 11),
    Sketcher.Constraint("Symmetric", 5, 3, 7, 3, -1),
    Sketcher.Constraint("Symmetric", 3, 3, 9, 3, -1),
    Sketcher.Constraint("Symmetric", 1, 3, 11, 3, -1),
    Sketcher.Constraint("Horizontal", 1, 3, 3, 3),
    Sketcher.Constraint("Horizontal", 3, 3, 5, 3),
    Sketcher.Constraint("Horizontal", 5, 3, 1, 2),
    Sketcher.Constraint("Horizontal", 2, 2, 3, 2),
    Sketcher.Constraint("Horizontal", 11, 3, 7, 2),
    Sketcher.Constraint("Horizontal", 8, 2, 9, 2),
    Sketcher.Constraint("Vertical", 11, 3, 0, 2),
    Sketcher.Constraint("Vertical", 7, 3, 5, 2),
    Sketcher.Constraint("Equal", 2, 4),
    Sketcher.Constraint("Radius", 1, 1.6),
    Sketcher.Constraint("DistanceY", 0, 1, 0, 2, 16.8),
    Sketcher.Constraint("DistanceX", 3, 3, -1, 1, 10.0),
    Sketcher.Constraint("DistanceX", 2, 1, 2, 2, 16.95),
])
sketch5.setExpression("Constraints[35]", "Params.sketch5_radius")
sketch5.setExpression("Constraints[36]", "Params.sketch5_height")
sketch5.setExpression("Constraints[38]", "Params.sketch5_width")
pad4 = body.newObject("PartDesign::Pad", "Pad003")
pad4.Profile = sketch5
pad4.setExpression("Length", "Params.pad4_length")

sketch6 = body.newObject("Sketcher::SketchObject", "Sketch005")
sketch6.AttachmentSupport = (doc.getObject("XY_Plane"), [""])
sketch6.MapMode = "FlatFace"
sketch6.addGeometry([
    Part.Circle(App.Vector(0, 0, 0), App.Vector(0, 0, 1), 12),
    Part.LineSegment(App.Vector(-15, 10, 0), App.Vector(-15, -10, 0)),
    Part.LineSegment(App.Vector(-15, -10, 0), App.Vector(-25, -10, 0)),
    Part.LineSegment(App.Vector(-25, -10, 0), App.Vector(-25, 10, 0)),
    Part.LineSegment(App.Vector(-25, 10, 0), App.Vector(-15, 10, 0)),
], False)
sketch6.addConstraint([
    Sketcher.Constraint("Coincident", 1, 2, 2, 1),
    Sketcher.Constraint("Coincident", 2, 2, 3, 1),
    Sketcher.Constraint("Coincident", 3, 2, 4, 1),
    Sketcher.Constraint("Coincident", 4, 2, 1, 1),
    Sketcher.Constraint("Vertical", 1),
    Sketcher.Constraint("Horizontal", 2),
    Sketcher.Constraint("Vertical", 3),
    Sketcher.Constraint("Horizontal", 4),
    Sketcher.Constraint("Coincident", 0, 3, -1, 1),
    Sketcher.Constraint("Diameter", 0, 24.0),
    Sketcher.Constraint("DistanceY", 1, 2, 1, 1, 20.0),
    Sketcher.Constraint("DistanceY", 1, 2, -1, 1, 10.0),
    Sketcher.Constraint("DistanceX", 2, 2, 2, 1, 10.075),
    Sketcher.Constraint("DistanceX", 1, 2, -1, 1, 15.0375),
])
sketch6.setExpression("Constraints[9]", "Params.sketch6_diameter")
sketch6.setExpression("Constraints[10]", "Params.sketch6_height")
pocket2 = body.newObject("PartDesign::Pocket", "Pocket001")
pocket2.Profile = sketch6
pocket2.setExpression("Length", "Params.pocket2_length")
pocket2.Reversed = True

sketch7 = body.newObject("Sketcher::SketchObject", "Sketch006")
sketch7.AttachmentSupport = (doc.getObject("XY_Plane"), [""])
sketch7.MapMode = "FlatFace"
sketch7.addGeometry([
    Part.Circle(App.Vector(10.2, 10, 0), App.Vector(0, 0, 1), 1.7),
    Part.Circle(App.Vector(-10, 10, 0), App.Vector(0, 0, 1), 1.7),
    Part.Circle(App.Vector(10.2, -10, 0), App.Vector(0, 0, 1), 1.7),
    Part.Circle(App.Vector(-10, -10, 0), App.Vector(0, 0, 1), 1.7),
    Part.Circle(App.Vector(-30.1, -10, 0), App.Vector(0, 0, 1), 1.7),
    Part.Circle(App.Vector(-30.1, 10, 0), App.Vector(0, 0, 1), 1.7),
    Part.Circle(App.Vector(0, 0, 0), App.Vector(0, 0, 1), 11),
], False)
sketch7.addConstraint([
    Sketcher.Constraint("Coincident", 6, 3, -1, 1),
    Sketcher.Constraint("Equal", 0, 1),
    Sketcher.Constraint("Equal", 1, 2),
    Sketcher.Constraint("Equal", 2, 3),
    Sketcher.Constraint("Equal", 3, 4),
    Sketcher.Constraint("Equal", 4, 5),
    Sketcher.Constraint("Symmetric", 0, 3, 2, 3, -1),
    Sketcher.Constraint("Symmetric", 1, 3, 3, 3, -1),
    Sketcher.Constraint("Symmetric", 4, 3, 5, 3, -1),
    Sketcher.Constraint("Horizontal", 0, 3, 1, 3),
    Sketcher.Constraint("Horizontal", 3, 3, 4, 3),
    Sketcher.Constraint("Diameter", 6, 22.0),
    Sketcher.Constraint("Diameter", 0, 3.4),
    Sketcher.Constraint("DistanceY", -1, 1, 0, 3, 10.0),
    Sketcher.Constraint("DistanceX", 1, 3, -1, 1, 10.0),
    Sketcher.Constraint("DistanceX", 4, 3, 2, 3, 40.3),
    Sketcher.Constraint("DistanceX", -1, 1, 0, 3, 10.15),
])
sketch7.setExpression("Constraints[11]", "Params.sketch7_diameter")
sketch7.setExpression("Constraints[12]", "Params.sketch7_diameter2")
pocket3 = body.newObject("PartDesign::Pocket", "Pocket002")
pocket3.Profile = sketch7
pocket3.setExpression("Length", "Params.pocket3_length")
pocket3.Reversed = True

doc.recompute()
